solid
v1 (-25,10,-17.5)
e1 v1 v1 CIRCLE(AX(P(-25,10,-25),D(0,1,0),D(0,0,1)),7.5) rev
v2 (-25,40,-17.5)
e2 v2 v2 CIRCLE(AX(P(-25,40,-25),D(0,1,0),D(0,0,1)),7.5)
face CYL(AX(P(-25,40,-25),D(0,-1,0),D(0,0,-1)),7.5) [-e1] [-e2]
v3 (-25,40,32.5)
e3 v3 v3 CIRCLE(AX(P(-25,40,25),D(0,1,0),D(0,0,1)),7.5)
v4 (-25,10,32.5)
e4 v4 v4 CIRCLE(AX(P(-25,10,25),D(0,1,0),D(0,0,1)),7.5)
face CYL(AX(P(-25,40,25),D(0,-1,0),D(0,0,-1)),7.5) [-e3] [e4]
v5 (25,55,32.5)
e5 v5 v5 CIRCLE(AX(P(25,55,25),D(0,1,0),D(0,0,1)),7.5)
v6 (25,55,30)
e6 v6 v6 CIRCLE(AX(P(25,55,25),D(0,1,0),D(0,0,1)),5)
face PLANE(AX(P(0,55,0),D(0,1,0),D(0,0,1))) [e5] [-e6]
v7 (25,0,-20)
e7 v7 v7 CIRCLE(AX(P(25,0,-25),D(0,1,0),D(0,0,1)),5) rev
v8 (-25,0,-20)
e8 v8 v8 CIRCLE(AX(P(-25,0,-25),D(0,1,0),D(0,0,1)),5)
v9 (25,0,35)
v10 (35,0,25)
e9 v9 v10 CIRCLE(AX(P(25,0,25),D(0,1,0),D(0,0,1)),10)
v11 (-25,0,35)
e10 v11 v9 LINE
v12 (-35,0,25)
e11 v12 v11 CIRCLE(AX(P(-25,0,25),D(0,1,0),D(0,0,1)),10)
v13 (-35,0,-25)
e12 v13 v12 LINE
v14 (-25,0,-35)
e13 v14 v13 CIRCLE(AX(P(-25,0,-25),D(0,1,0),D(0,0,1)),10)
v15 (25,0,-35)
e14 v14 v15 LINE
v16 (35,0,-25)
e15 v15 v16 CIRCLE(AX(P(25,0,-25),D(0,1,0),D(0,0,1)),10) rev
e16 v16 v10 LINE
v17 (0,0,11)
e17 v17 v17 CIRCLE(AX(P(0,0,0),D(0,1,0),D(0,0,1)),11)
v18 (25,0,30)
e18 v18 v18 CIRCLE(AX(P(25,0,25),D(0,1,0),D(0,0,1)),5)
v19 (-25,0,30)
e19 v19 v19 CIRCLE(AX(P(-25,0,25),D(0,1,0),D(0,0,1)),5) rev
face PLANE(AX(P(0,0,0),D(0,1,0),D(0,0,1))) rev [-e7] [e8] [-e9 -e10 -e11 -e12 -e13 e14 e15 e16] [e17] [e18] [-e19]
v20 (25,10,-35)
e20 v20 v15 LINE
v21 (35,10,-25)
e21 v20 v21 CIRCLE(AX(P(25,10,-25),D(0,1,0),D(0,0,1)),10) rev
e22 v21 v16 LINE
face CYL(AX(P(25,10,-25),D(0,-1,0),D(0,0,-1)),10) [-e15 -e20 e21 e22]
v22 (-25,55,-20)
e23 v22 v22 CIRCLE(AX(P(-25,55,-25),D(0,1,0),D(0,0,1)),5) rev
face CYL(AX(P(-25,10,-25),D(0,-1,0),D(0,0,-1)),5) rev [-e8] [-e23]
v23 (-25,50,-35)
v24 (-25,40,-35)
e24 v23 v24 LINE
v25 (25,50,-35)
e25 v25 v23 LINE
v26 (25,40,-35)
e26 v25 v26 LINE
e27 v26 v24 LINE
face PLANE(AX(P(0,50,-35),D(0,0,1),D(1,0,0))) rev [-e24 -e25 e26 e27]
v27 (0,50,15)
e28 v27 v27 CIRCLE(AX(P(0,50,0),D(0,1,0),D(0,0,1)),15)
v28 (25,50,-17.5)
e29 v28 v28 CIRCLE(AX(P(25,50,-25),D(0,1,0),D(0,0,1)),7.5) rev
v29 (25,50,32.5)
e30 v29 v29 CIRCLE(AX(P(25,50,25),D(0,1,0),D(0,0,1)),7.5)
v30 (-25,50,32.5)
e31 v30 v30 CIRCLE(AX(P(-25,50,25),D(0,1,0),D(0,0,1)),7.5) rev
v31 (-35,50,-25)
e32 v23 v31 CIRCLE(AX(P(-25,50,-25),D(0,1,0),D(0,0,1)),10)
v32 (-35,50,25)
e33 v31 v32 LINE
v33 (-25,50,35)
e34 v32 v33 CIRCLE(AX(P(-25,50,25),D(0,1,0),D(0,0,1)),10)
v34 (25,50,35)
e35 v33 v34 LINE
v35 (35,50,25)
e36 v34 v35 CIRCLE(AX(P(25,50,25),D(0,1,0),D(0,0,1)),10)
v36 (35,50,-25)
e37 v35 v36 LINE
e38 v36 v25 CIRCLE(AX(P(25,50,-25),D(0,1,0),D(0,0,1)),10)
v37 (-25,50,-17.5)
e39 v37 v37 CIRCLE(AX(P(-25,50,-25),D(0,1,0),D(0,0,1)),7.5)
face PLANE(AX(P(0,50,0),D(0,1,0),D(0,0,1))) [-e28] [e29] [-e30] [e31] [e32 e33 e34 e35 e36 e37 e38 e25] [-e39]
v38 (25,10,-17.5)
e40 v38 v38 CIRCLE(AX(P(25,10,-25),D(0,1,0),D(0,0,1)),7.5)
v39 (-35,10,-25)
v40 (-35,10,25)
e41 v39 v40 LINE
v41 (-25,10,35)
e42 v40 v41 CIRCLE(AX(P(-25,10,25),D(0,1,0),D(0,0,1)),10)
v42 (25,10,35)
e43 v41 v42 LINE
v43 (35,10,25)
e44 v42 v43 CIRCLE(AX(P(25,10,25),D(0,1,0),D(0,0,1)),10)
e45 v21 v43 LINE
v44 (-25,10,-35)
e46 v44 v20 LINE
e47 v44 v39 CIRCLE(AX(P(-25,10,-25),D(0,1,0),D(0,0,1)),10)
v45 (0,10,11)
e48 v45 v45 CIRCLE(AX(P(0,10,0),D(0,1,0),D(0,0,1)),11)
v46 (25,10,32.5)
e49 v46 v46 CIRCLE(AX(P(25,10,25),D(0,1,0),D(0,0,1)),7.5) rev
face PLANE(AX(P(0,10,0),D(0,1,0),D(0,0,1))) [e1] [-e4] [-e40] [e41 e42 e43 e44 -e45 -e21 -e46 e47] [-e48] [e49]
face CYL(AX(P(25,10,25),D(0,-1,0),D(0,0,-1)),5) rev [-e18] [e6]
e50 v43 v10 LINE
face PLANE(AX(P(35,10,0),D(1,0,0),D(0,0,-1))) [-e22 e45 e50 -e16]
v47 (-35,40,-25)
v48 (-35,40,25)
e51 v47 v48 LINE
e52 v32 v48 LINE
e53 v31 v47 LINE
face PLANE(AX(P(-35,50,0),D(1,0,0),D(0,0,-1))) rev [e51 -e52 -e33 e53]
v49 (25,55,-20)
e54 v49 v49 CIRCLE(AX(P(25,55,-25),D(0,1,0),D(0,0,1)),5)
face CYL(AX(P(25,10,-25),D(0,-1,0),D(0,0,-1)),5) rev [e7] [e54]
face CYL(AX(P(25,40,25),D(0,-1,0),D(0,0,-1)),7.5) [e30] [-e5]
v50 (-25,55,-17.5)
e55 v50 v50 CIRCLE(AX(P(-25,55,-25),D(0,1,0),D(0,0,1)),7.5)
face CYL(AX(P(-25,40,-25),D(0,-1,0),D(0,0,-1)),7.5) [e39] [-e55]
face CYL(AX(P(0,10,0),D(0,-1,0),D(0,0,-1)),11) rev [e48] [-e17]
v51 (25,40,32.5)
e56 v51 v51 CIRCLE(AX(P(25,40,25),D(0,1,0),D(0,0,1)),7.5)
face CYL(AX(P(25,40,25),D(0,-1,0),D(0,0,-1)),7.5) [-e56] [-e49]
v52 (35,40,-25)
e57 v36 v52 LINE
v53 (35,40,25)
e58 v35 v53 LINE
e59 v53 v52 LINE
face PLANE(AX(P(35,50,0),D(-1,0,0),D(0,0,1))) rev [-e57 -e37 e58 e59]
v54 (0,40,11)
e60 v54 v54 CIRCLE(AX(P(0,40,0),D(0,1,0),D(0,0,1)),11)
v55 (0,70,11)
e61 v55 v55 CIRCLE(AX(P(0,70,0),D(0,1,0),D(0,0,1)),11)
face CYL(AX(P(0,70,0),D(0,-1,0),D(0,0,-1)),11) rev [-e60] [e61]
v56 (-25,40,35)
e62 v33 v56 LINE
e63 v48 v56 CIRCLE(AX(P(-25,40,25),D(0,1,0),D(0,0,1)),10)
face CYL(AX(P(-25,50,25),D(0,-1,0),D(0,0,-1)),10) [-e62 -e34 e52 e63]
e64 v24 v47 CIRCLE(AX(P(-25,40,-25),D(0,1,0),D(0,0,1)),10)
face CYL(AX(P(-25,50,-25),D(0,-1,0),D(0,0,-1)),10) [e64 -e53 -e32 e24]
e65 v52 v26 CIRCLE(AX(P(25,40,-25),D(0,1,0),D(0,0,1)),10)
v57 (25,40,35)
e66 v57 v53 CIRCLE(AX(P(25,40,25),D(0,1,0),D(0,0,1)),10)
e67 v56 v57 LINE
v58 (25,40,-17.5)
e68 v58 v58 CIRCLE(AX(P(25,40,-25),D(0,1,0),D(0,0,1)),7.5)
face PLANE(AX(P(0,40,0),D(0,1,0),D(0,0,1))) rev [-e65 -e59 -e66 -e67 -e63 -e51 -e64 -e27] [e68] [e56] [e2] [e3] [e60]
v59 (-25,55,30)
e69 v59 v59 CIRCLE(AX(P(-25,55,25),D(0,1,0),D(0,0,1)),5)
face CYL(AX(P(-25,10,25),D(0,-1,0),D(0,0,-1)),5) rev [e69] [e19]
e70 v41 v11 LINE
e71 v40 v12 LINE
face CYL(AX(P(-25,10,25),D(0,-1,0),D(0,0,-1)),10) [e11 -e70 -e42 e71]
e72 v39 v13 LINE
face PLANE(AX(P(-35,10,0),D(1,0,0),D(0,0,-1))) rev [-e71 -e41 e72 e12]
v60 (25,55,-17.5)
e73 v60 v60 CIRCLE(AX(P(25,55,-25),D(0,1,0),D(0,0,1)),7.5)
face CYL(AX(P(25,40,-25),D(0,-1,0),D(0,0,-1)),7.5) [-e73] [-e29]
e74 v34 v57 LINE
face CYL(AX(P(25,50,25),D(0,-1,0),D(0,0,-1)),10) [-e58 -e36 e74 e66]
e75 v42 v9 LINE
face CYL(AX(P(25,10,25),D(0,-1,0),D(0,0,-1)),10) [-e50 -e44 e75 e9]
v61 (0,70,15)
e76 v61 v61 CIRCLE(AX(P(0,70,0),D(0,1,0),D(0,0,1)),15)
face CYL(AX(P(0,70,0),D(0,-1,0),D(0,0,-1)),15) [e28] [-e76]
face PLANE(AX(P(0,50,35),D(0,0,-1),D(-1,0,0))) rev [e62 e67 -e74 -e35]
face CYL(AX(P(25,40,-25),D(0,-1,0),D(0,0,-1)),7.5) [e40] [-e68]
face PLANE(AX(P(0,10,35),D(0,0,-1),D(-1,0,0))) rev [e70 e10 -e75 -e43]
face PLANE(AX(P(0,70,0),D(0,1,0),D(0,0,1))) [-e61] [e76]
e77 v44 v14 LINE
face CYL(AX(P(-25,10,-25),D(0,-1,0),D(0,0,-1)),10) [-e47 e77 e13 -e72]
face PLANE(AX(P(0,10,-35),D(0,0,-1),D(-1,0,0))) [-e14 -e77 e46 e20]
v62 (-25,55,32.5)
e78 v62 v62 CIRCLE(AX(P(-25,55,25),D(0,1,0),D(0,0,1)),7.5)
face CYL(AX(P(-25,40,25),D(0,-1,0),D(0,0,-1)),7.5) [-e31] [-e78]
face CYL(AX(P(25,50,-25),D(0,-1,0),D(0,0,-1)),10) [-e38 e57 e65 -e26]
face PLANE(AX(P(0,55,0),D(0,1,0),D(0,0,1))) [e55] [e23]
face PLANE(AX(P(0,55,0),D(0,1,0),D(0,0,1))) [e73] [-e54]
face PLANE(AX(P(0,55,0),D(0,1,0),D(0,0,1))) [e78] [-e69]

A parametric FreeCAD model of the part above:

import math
import FreeCAD as App
import Part
import Sketcher

V = App.Vector
Q = App.Units.Quantity

doc = App.newDocument("Part")
params = doc.addObject("Spreadsheet::Sheet", "Params")
for row, (alias, value) in enumerate([
    ("sketch1_diameter", "10 mm"),
    ("sketch1_diameter2", "22 mm"),
    ("sketch1_radius", "10 mm"),
    ("sketch1_width", "50 mm"),
    ("pad1_length", "10 mm"),
    ("sketch2_diameter", "15 mm"),
    ("sketch2_diameter2", "10 mm"),
    ("pad2_length", "40 mm"),
    ("sketch3_diameter", "15 mm"),
    ("sketch3_diameter2", "30 mm"),
    ("sketch3_radius", "10 mm"),
    ("sketch3_width", "50 mm"),
    ("pad3_length", "10 mm"),
    ("sketch4_diameter", "15 mm"),
    ("sketch4_diameter2", "10 mm"),
    ("pad4_length", "15 mm"),
    ("sketch5_diameter", "30 mm"),
    ("sketch5_diameter2", "22 mm"),
    ("pad5_length", "30 mm"),
], start=1):
    params.set(f"A{row}", alias)
    params.set(f"B{row}", "=" + value)
    params.setAlias(f"B{row}", alias)

body = doc.addObject("PartDesign::Body", "Body")

sketch1 = doc.addObject("Sketcher::SketchObject", "Sketch")
body.addObject(sketch1)
sketch1.AttachmentSupport = (doc.XZ_Plane, [""])
sketch1.MapMode = "FlatFace"
sketch1.addGeometry(Part.LineSegment(V(25, -35, 0), V(-25, -35, 0)), False)
sketch1.addGeometry(Part.ArcOfCircle(Part.Circle(V(-25, -25, 0), V(0, 0, 1), 10), math.radians(180), math.radians(270)), False)
sketch1.addGeometry(Part.LineSegment(V(-35, -25, 0), V(-35, 25, 0)), False)
sketch1.addGeometry(Part.ArcOfCircle(Part.Circle(V(-25, 25, 0), V(0, 0, 1), 10), math.radians(90), math.radians(180)), False)
sketch1.addGeometry(Part.LineSegment(V(-25, 35, 0), V(25, 35, 0)), False)
sketch1.addGeometry(Part.ArcOfCircle(Part.Circle(V(25, 25, 0), V(0, 0, 1), 10), math.radians(0), math.radians(90)), False)
sketch1.addGeometry(Part.LineSegment(V(35, 25, 0), V(35, -25, 0)), False)
sketch1.addGeometry(Part.ArcOfCircle(Part.Circle(V(25, -25, 0), V(0, 0, 1), 10), math.radians(-90), math.radians(0)), False)
sketch1.addGeometry(Part.Circle(V(25, 25, 0), V(0, 0, 1), 5), False)
sketch1.addGeometry(Part.Circle(V(-25, 25, 0), V(0, 0, 1), 5), False)
sketch1.addGeometry(Part.Circle(V(25, -25, 0), V(0, 0, 1), 5), False)
sketch1.addGeometry(Part.Circle(V(0, 0, 0), V(0, 0, 1), 11), False)
sketch1.addGeometry(Part.Circle(V(-25, -25, 0), V(0, 0, 1), 5), False)
sketch1.addConstraint(Sketcher.Constraint("Tangent", 0, 2, 1, 2))
sketch1.addConstraint(Sketcher.Constraint("Tangent", 1, 1, 2, 1))
sketch1.addConstraint(Sketcher.Constraint("Tangent", 2, 2, 3, 2))
sketch1.addConstraint(Sketcher.Constraint("Tangent", 3, 1, 4, 1))
sketch1.addConstraint(Sketcher.Constraint("Tangent", 4, 2, 5, 2))
sketch1.addConstraint(Sketcher.Constraint("Tangent", 5, 1, 6, 1))
sketch1.addConstraint(Sketcher.Constraint("Tangent", 6, 2, 7, 2))
sketch1.addConstraint(Sketcher.Constraint("Tangent", 7, 1, 0, 1))
sketch1.addConstraint(Sketcher.Constraint("Horizontal", 0))
sketch1.addConstraint(Sketcher.Constraint("Vertical", 2))
sketch1.addConstraint(Sketcher.Constraint("Horizontal", 4))
sketch1.addConstraint(Sketcher.Constraint("Vertical", 6))
sketch1.addConstraint(Sketcher.Constraint("Coincident", 11, 3, -1, 1))
sketch1.addConstraint(Sketcher.Constraint("Coincident", 8, 3, 5, 3))
sketch1.addConstraint(Sketcher.Constraint("Coincident", 9, 3, 3, 3))
sketch1.addConstraint(Sketcher.Constraint("Coincident", 10, 3, 7, 3))
sketch1.addConstraint(Sketcher.Constraint("Coincident", 12, 3, 1, 3))
sketch1.addConstraint(Sketcher.Constraint("Equal", 1, 3))
sketch1.addConstraint(Sketcher.Constraint("Equal", 3, 5))
sketch1.addConstraint(Sketcher.Constraint("Equal", 5, 7))
sketch1.addConstraint(Sketcher.Constraint("Equal", 8, 9))
sketch1.addConstraint(Sketcher.Constraint("Equal", 9, 10))
sketch1.addConstraint(Sketcher.Constraint("Equal", 10, 12))
sketch1.addConstraint(Sketcher.Constraint("Symmetric", 1, 3, 5, 3, -1, 1))
sketch1.addConstraint(Sketcher.Constraint("Equal", 4, 2))
sketch1.addConstraint(Sketcher.Constraint("Diameter", 8, Q("10 mm")))
sketch1.addConstraint(Sketcher.Constraint("Diameter", 11, Q("22 mm")))
sketch1.addConstraint(Sketcher.Constraint("Radius", 1, Q("10 mm")))
sketch1.addConstraint(Sketcher.Constraint("DistanceX", 0, 2, 0, 1, Q("50 mm")))
sketch1.setExpression("Constraints[25]", "Params.sketch1_diameter")
sketch1.setExpression("Constraints[26]", "Params.sketch1_diameter2")
sketch1.setExpression("Constraints[27]", "Params.sketch1_radius")
sketch1.setExpression("Constraints[28]", "Params.sketch1_width")
pad1 = doc.addObject("PartDesign::Pad", "Pad")
body.addObject(pad1)
pad1.Profile = sketch1
pad1.setExpression("Length", "Params.pad1_length")
pad1.Reversed = True

sketch2 = doc.addObject("Sketcher::SketchObject", "Sketch001")
body.addObject(sketch2)
sketch2.AttachmentSupport = (doc.XZ_Plane, [""])
sketch2.MapMode = "FlatFace"
sketch2.addGeometry(Part.Circle(V(-25, -25, 0), V(0, 0, 1), 7.5), False)
sketch2.addGeometry(Part.Circle(V(-25, -25, 0), V(0, 0, 1), 5), False)
sketch2.addGeometry(Part.Circle(V(25, -25, 0), V(0, 0, 1), 7.5), False)
sketch2.addGeometry(Part.Circle(V(25, -25, 0), V(0, 0, 1), 5), False)
sketch2.addGeometry(Part.Circle(V(-25, 25, 0), V(0, 0, 1), 7.5), False)
sketch2.addGeometry(Part.Circle(V(-25, 25, 0), V(0, 0, 1), 5), False)
sketch2.addGeometry(Part.Circle(V(25, 25, 0), V(0, 0, 1), 7.5), False)
sketch2.addGeometry(Part.Circle(V(25, 25, 0), V(0, 0, 1), 5), False)
sketch2.addConstraint(Sketcher.Constraint("Coincident", 1, 3, 0, 3))
sketch2.addConstraint(Sketcher.Constraint("Coincident", 3, 3, 2, 3))
sketch2.addConstraint(Sketcher.Constraint("Coincident", 5, 3, 4, 3))
sketch2.addConstraint(Sketcher.Constraint("Coincident", 7, 3, 6, 3))
sketch2.addConstraint(Sketcher.Constraint("Equal", 0, 2))
sketch2.addConstraint(Sketcher.Constraint("Equal", 1, 3))
sketch2.addConstraint(Sketcher.Constraint("Equal", 2, 4))
sketch2.addConstraint(Sketcher.Constraint("Equal", 3, 5))
sketch2.addConstraint(Sketcher.Constraint("Equal", 4, 6))
sketch2.addConstraint(Sketcher.Constraint("Equal", 5, 7))
sketch2.addConstraint(Sketcher.Constraint("Symmetric", 2, 3, 4, 3, -1, 1))
sketch2.addConstraint(Sketcher.Constraint("Symmetric", 0, 3, 6, 3, -1, 1))
sketch2.addConstraint(Sketcher.Constraint("Symmetric", 0, 3, 2, 3, -2))
sketch2.addConstraint(Sketcher.Constraint("Diameter", 0, Q("15 mm")))
sketch2.addConstraint(Sketcher.Constraint("Diameter", 1, Q("10 mm")))
sketch2.addConstraint(Sketcher.Constraint("DistanceX", 0, 3, -1, 1, Q("25 mm")))
sketch2.addConstraint(Sketcher.Constraint("DistanceY", 0, 3, -1, 1, Q("25 mm")))
sketch2.setExpression("Constraints[13]", "Params.sketch2_diameter")
sketch2.setExpression("Constraints[14]", "Params.sketch2_diameter2")
pad2 = doc.addObject("PartDesign::Pad", "Pad001")
body.addObject(pad2)
pad2.Profile = sketch2
pad2.setExpression("Length", "Params.pad2_length")
pad2.Reversed = True
body2 = doc.addObject("PartDesign::Body", "Body001")

sketch3 = doc.addObject("Sketcher::SketchObject", "Sketch002")
body2.addObject(sketch3)
sketch3.AttachmentSupport = (doc.getObject("XZ_Plane001"), [""])
sketch3.MapMode = "FlatFace"
sketch3.AttachmentOffset = App.Placement(V(0, 0, -40), App.Rotation())
sketch3.addGeometry(Part.ArcOfCircle(Part.Circle(V(25, -25, 0), V(0, 0, 1), 10), math.radians(-90), math.radians(0)), False)
sketch3.addGeometry(Part.LineSegment(V(25, -35, 0), V(-25, -35, 0)), False)
sketch3.addGeometry(Part.ArcOfCircle(Part.Circle(V(-25, -25, 0), V(0, 0, 1), 10), math.radians(180), math.radians(270)), False)
sketch3.addGeometry(Part.LineSegment(V(-35, -25, 0), V(-35, 25, 0)), False)
sketch3.addGeometry(Part.ArcOfCircle(Part.Circle(V(-25, 25, 0), V(0, 0, 1), 10), math.radians(90), math.radians(180)), False)
sketch3.addGeometry(Part.LineSegment(V(-25, 35, 0), V(25, 35, 0)), False)
sketch3.addGeometry(Part.ArcOfCircle(Part.Circle(V(25, 25, 0), V(0, 0, 1), 10), math.radians(0), math.radians(90)), False)
sketch3.addGeometry(Part.LineSegment(V(35, 25, 0), V(35, -25, 0)), False)
sketch3.addGeometry(Part.Circle(V(-25, 25, 0), V(0, 0, 1), 7.5), False)
sketch3.addGeometry(Part.Circle(V(25, 25, 0), V(0, 0, 1), 7.5), False)
sketch3.addGeometry(Part.Circle(V(-25, -25, 0), V(0, 0, 1), 7.5), False)
sketch3.addGeometry(Part.Circle(V(0, 0, 0), V(0, 0, 1), 15), False)
sketch3.addGeometry(Part.Circle(V(25, -25, 0), V(0, 0, 1), 7.5), False)
sketch3.addConstraint(Sketcher.Constraint("Tangent", 0, 1, 1, 1))
sketch3.addConstraint(Sketcher.Constraint("Tangent", 1, 2, 2, 2))
sketch3.addConstraint(Sketcher.Constraint("Tangent", 2, 1, 3, 1))
sketch3.addConstraint(Sketcher.Constraint("Tangent", 3, 2, 4, 2))
sketch3.addConstraint(Sketcher.Constraint("Tangent", 4, 1, 5, 1))
sketch3.addConstraint(Sketcher.Constraint("Tangent", 5, 2, 6, 2))
sketch3.addConstraint(Sketcher.Constraint("Tangent", 6, 1, 7, 1))
sketch3.addConstraint(Sketcher.Constraint("Tangent", 7, 2, 0, 2))
sketch3.addConstraint(Sketcher.Constraint("Horizontal", 1))
sketch3.addConstraint(Sketcher.Constraint("Vertical", 3))
sketch3.addConstraint(Sketcher.Constraint("Horizontal", 5))
sketch3.addConstraint(Sketcher.Constraint("Vertical", 7))
sketch3.addConstraint(Sketcher.Constraint("Coincident", 11, 3, -1, 1))
sketch3.addConstraint(Sketcher.Constraint("Coincident", 8, 3, 4, 3))
sketch3.addConstraint(Sketcher.Constraint("Coincident", 9, 3, 6, 3))
sketch3.addConstraint(Sketcher.Constraint("Coincident", 10, 3, 2, 3))
sketch3.addConstraint(Sketcher.Constraint("Coincident", 12, 3, 0, 3))
sketch3.addConstraint(Sketcher.Constraint("Equal", 0, 2))
sketch3.addConstraint(Sketcher.Constraint("Equal", 2, 4))
sketch3.addConstraint(Sketcher.Constraint("Equal", 4, 6))
sketch3.addConstraint(Sketcher.Constraint("Equal", 8, 9))
sketch3.addConstraint(Sketcher.Constraint("Equal", 9, 10))
sketch3.addConstraint(Sketcher.Constraint("Equal", 10, 12))
sketch3.addConstraint(Sketcher.Constraint("Symmetric", 0, 3, 4, 3, -1, 1))
sketch3.addConstraint(Sketcher.Constraint("Equal", 5, 3))
sketch3.addConstraint(Sketcher.Constraint("Diameter", 8, Q("15 mm")))
sketch3.addConstraint(Sketcher.Constraint("Diameter", 11, Q("30 mm")))
sketch3.addConstraint(Sketcher.Constraint("Radius", 0, Q("10 mm")))
sketch3.addConstraint(Sketcher.Constraint("DistanceX", 1, 2, 1, 1, Q("50 mm")))
sketch3.setExpression("Constraints[25]", "Params.sketch3_diameter")
sketch3.setExpression("Constraints[26]", "Params.sketch3_diameter2")
sketch3.setExpression("Constraints[27]", "Params.sketch3_radius")
sketch3.setExpression("Constraints[28]", "Params.sketch3_width")
pad3 = doc.addObject("PartDesign::Pad", "Pad002")
body2.addObject(pad3)
pad3.Profile = sketch3
pad3.setExpression("Length", "Params.pad3_length")
pad3.Reversed = True
body.AllowCompound = True
doc.recompute()

boolean = doc.addObject("PartDesign::Boolean", "Boolean")
body.addObject(boolean)
boolean.Type = "Fuse"
boolean.addObjects([body2])

sketch4 = doc.addObject("Sketcher::SketchObject", "Sketch003")
body.addObject(sketch4)
sketch4.AttachmentSupport = (doc.XZ_Plane, [""])
sketch4.MapMode = "FlatFace"
sketch4.AttachmentOffset = App.Placement(V(0, 0, -40), App.Rotation())
sketch4.addGeometry(Part.Circle(V(25, -25, 0), V(0, 0, 1), 7.5), False)
sketch4.addGeometry(Part.Circle(V(25, -25, 0), V(0, 0, 1), 5), False)
sketch4.addGeometry(Part.Circle(V(25, 25, 0), V(0, 0, 1), 7.5), False)
sketch4.addGeometry(Part.Circle(V(25, 25, 0), V(0, 0, 1), 5), False)
sketch4.addGeometry(Part.Circle(V(-25, 25, 0), V(0, 0, 1), 7.5), False)
sketch4.addGeometry(Part.Circle(V(-25, 25, 0), V(0, 0, 1), 5), False)
sketch4.addGeometry(Part.Circle(V(-25, -25, 0), V(0, 0, 1), 7.5), False)
sketch4.addGeometry(Part.Circle(V(-25, -25, 0), V(0, 0, 1), 5), False)
sketch4.addConstraint(Sketcher.Constraint("Coincident", 1, 3, 0, 3))
sketch4.addConstraint(Sketcher.Constraint("Coincident", 3, 3, 2, 3))
sketch4.addConstraint(Sketcher.Constraint("Coincident", 5, 3, 4, 3))
sketch4.addConstraint(Sketcher.Constraint("Coincident", 7, 3, 6, 3))
sketch4.addConstraint(Sketcher.Constraint("Equal", 0, 2))
sketch4.addConstraint(Sketcher.Constraint("Equal", 1, 3))
sketch4.addConstraint(Sketcher.Constraint("Equal", 2, 4))
sketch4.addConstraint(Sketcher.Constraint("Equal", 3, 5))
sketch4.addConstraint(Sketcher.Constraint("Equal", 4, 6))
sketch4.addConstraint(Sketcher.Constraint("Equal", 5, 7))
sketch4.addConstraint(Sketcher.Constraint("Symmetric", 0, 3, 4, 3, -1, 1))
sketch4.addConstraint(Sketcher.Constraint("Symmetric", 2, 3, 6, 3, -1, 1))
sketch4.addConstraint(Sketcher.Constraint("Symmetric", 2, 3, 4, 3, -2))
sketch4.addConstraint(Sketcher.Constraint("Diameter", 0, Q("15 mm")))
sketch4.addConstraint(Sketcher.Constraint("Diameter", 1, Q("10 mm")))
sketch4.addConstraint(Sketcher.Constraint("DistanceX", -1, 1, 0, 3, Q("25 mm")))
sketch4.addConstraint(Sketcher.Constraint("DistanceY", 0, 3, -1, 1, Q("25 mm")))
sketch4.setExpression("Constraints[13]", "Params.sketch4_diameter")
sketch4.setExpression("Constraints[14]", "Params.sketch4_diameter2")
pad4 = doc.addObject("PartDesign::Pad", "Pad003")
body.addObject(pad4)
pad4.Profile = sketch4
pad4.setExpression("Length", "Params.pad4_length")
pad4.Reversed = True

sketch5 = doc.addObject("Sketcher::SketchObject", "Sketch004")
body.addObject(sketch5)
sketch5.AttachmentSupport = (doc.XZ_Plane, [""])
sketch5.MapMode = "FlatFace"
sketch5.AttachmentOffset = App.Placement(V(0, 0, -40), App.Rotation())
sketch5.addGeometry(Part.Circle(V(0, 0, 0), V(0, 0, 1), 15), False)
sketch5.addGeometry(Part.Circle(V(0, 0, 0), V(0, 0, 1), 11), False)
sketch5.addConstraint(Sketcher.Constraint("Coincident", 0, 3, -1, 1))
sketch5.addConstraint(Sketcher.Constraint("Coincident", 1, 3, -1, 1))
sketch5.addConstraint(Sketcher.Constraint("Diameter", 0, Q("30 mm")))
sketch5.addConstraint(Sketcher.Constraint("Diameter", 1, Q("22 mm")))
sketch5.setExpression("Constraints[2]", "Params.sketch5_diameter")
sketch5.setExpression("Constraints[3]", "Params.sketch5_diameter2")
pad5 = doc.addObject("PartDesign::Pad", "Pad004")
body.addObject(pad5)
pad5.Profile = sketch5
pad5.setExpression("Length", "Params.pad5_length")
pad5.Reversed = True

doc.recompute()
